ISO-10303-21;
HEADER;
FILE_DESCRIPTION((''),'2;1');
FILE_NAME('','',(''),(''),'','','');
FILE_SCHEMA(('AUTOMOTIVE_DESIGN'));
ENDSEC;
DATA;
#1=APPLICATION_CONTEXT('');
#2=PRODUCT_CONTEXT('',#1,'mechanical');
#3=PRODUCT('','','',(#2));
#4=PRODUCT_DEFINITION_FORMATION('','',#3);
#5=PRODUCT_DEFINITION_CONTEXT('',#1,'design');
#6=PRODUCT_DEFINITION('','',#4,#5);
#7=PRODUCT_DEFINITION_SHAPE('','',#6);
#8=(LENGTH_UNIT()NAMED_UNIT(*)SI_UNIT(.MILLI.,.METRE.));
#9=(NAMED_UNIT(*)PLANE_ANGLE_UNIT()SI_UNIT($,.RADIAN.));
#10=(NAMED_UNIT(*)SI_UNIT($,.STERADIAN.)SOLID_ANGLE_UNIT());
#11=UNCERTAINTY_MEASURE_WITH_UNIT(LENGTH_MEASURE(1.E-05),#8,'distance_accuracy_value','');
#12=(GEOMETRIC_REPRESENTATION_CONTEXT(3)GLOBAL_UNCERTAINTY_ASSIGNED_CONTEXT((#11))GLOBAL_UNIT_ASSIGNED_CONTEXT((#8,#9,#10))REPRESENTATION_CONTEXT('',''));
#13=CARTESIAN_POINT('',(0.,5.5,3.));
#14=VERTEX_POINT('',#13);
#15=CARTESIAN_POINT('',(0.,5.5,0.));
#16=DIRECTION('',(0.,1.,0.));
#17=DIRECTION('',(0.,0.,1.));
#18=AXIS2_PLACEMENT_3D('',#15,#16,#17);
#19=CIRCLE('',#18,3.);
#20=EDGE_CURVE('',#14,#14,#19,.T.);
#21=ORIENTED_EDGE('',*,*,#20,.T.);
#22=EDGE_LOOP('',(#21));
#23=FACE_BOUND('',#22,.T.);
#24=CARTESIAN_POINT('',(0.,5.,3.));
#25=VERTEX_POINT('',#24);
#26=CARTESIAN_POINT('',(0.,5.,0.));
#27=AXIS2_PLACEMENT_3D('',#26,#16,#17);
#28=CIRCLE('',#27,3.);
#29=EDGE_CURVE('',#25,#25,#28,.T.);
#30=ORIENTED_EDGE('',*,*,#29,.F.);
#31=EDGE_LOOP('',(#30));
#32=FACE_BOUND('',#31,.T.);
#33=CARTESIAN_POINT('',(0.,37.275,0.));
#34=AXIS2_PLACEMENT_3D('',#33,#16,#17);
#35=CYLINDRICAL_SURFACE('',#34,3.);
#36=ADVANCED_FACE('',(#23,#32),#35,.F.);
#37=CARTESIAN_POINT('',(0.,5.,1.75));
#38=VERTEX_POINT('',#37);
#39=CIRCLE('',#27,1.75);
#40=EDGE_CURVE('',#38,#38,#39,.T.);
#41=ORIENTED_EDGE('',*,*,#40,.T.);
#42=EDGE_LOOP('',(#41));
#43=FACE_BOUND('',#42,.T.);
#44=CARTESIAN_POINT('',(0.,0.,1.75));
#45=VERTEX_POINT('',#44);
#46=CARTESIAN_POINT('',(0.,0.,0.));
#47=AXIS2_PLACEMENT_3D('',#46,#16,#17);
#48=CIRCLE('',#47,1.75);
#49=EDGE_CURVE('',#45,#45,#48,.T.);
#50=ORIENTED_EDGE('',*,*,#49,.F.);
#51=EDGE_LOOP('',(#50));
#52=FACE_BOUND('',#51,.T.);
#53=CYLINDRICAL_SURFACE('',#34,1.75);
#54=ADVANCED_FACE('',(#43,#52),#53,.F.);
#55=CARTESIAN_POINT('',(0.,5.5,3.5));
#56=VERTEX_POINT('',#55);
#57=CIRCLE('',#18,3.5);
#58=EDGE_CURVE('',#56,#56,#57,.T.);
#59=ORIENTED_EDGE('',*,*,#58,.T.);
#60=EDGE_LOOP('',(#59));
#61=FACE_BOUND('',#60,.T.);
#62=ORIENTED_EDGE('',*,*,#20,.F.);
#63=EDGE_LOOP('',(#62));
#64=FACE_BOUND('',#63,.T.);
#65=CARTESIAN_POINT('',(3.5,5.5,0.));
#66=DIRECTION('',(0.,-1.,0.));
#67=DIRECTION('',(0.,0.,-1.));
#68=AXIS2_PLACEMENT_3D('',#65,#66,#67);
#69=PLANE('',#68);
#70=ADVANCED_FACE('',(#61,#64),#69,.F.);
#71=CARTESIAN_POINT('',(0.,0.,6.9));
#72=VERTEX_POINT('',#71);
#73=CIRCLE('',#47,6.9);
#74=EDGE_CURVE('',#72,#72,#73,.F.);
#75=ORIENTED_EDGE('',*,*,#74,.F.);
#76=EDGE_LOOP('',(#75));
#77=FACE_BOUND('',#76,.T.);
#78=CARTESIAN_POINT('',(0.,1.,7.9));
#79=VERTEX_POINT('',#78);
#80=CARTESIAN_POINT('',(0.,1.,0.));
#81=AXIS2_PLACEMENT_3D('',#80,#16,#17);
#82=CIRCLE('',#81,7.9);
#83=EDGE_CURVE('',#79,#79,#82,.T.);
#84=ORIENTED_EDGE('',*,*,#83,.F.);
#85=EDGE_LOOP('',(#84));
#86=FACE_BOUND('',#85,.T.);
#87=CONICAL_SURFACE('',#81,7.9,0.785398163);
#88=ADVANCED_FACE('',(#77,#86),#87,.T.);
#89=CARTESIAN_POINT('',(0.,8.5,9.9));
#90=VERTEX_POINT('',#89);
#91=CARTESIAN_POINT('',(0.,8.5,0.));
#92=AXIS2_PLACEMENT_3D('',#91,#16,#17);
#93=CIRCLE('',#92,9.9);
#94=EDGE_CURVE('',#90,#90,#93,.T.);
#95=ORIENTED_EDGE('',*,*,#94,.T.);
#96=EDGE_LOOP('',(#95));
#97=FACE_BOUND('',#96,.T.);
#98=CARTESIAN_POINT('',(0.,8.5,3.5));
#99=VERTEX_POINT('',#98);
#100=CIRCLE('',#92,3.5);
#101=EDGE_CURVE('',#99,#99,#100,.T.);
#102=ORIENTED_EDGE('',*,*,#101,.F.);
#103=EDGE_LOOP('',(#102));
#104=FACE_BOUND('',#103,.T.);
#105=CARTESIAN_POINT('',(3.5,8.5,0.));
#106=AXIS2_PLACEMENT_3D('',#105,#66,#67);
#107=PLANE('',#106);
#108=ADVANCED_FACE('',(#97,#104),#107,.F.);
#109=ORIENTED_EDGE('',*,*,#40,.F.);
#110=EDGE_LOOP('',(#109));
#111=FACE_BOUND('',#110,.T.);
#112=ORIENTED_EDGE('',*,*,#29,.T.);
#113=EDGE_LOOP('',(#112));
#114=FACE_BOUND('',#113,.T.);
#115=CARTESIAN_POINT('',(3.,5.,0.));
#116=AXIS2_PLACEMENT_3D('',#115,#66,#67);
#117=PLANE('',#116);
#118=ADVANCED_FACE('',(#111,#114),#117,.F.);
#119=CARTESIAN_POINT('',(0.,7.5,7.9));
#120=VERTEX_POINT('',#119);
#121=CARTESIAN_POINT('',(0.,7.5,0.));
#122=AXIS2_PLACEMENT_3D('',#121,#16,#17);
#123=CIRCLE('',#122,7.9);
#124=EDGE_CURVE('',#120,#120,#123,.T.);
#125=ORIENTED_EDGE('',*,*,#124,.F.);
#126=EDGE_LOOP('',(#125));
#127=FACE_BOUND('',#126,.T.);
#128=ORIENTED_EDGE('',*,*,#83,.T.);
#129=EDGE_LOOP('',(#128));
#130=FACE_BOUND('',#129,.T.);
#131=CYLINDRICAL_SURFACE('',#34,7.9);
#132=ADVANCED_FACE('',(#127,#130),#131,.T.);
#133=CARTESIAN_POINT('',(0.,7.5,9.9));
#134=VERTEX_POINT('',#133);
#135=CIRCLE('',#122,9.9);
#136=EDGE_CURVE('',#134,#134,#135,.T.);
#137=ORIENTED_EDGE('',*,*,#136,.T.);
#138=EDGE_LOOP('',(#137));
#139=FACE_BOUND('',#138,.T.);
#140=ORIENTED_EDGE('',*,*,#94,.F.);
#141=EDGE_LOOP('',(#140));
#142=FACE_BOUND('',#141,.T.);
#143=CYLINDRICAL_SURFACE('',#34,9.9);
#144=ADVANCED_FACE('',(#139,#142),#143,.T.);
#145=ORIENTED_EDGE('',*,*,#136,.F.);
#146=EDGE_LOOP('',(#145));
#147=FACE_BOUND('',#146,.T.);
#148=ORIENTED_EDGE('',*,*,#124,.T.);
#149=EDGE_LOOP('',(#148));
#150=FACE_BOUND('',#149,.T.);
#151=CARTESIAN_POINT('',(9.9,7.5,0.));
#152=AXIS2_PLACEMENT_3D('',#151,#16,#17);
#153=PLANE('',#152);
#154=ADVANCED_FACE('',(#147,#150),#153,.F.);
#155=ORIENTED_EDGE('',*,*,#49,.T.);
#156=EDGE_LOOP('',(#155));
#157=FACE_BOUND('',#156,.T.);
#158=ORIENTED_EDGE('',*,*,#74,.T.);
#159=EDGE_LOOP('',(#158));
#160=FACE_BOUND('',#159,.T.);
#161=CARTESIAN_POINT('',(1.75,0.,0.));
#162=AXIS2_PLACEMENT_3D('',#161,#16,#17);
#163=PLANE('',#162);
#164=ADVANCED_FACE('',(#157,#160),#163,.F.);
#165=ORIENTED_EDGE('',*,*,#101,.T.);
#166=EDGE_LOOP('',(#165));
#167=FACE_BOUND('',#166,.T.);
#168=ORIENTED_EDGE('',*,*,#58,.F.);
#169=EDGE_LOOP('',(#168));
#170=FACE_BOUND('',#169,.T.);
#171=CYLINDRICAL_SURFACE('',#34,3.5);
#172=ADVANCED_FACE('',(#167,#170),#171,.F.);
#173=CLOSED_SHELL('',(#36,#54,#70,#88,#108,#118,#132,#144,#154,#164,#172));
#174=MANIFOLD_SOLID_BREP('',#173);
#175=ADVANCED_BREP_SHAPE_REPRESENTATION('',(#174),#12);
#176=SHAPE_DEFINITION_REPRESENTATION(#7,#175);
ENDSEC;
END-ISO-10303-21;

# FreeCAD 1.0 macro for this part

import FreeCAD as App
import Part
import Sketcher
from FreeCAD import Vector
Q = App.Units.Quantity


def edges_at(feature, points):
    """Names of the edges that pass closest to the given points."""
    edges = feature.Shape.Edges
    near = lambda p: min(range(len(edges)), key=lambda i: edges[i].distToShape(Part.Vertex(*p))[0])
    return sorted({f"Edge{near(p) + 1}" for p in points})


def add_polygon(sketch, points):
    """Adds a closed chain of lines whose ends are joined by coincident constraints."""
    first, n = sketch.GeometryCount, len(points)
    for a, b in zip(points, points[1:] + points[:1]):
        sketch.addGeometry(Part.LineSegment(App.Vector(*a, 0), App.Vector(*b, 0)), False)
    for i in range(n):
        sketch.addConstraint(Sketcher.Constraint("Coincident", first + i, 2, first + (i + 1) % n, 1))

doc = App.newDocument("Part")
params = doc.addObject("Spreadsheet::Sheet", "Params")
for row, (alias, value) in enumerate([
    ("sketch1_width", "2 mm"),
    ("sketch1_height", "1 mm"),
    ("sketch1_height2", "3 mm"),
    ("sketch1_height3", "5 mm"),
    ("sketch1_width2", "6.4 mm"),
    ("revolution_angle", "360 deg"),
    ("chamfer_size", "1 mm"),
], start=1):
    params.set(f"A{row}", alias)
    params.set(f"B{row}", "=" + value)
    params.setAlias(f"B{row}", alias)

body = doc.addObject("PartDesign::Body", "Body")

# Sketch on XY plane
sketch1 = body.newObject("Sketcher::SketchObject", "Sketch")
sketch1.AttachmentSupport = (doc.getObject("XY_Plane"), [""])
sketch1.MapMode = "FlatFace"
add_polygon(sketch1, [(1.8, 0), (7.9, 0), (7.9, 7.5), (9.9, 7.5), (9.9, 8.5), (3.5, 8.5), (3.5, 5.5), (3, 5.5), (3, 5), (1.8, 5)])  # lines 0-9
sketch1.addConstraint([
    Sketcher.Constraint("Horizontal", 0),
    Sketcher.Constraint("Vertical", 1),
    Sketcher.Constraint("Horizontal", 2),
    Sketcher.Constraint("Vertical", 3),
    Sketcher.Constraint("Horizontal", 4),
    Sketcher.Constraint("Vertical", 5),
    Sketcher.Constraint("Horizontal", 6),
    Sketcher.Constraint("Vertical", 7),
    Sketcher.Constraint("Horizontal", 8),
    Sketcher.Constraint("Vertical", 9),
    Sketcher.Constraint("PointOnObject", 0, 2, -1),
    Sketcher.Constraint("Equal", 6, 7),
    Sketcher.Constraint("DistanceX", 2, 1, 2, 2, Q("2 mm")),
    Sketcher.Constraint("DistanceY", 3, 1, 3, 2, Q("1 mm")),
    Sketcher.Constraint("DistanceY", 5, 2, 5, 1, Q("3 mm")),
    Sketcher.Constraint("DistanceY", 9, 2, 9, 1, Q("5 mm")),
    Sketcher.Constraint("DistanceX", 4, 2, 4, 1, Q("6.4 mm")),
    Sketcher.Constraint("DistanceX", 6, 2, 6, 1, Q("0.5 mm")),
    Sketcher.Constraint("DistanceX", -1, 1, 6, 2, Q("3 mm")),
    Sketcher.Constraint("DistanceX", 0, 1, 0, 2, Q("6.15 mm")),
])
sketch1.setExpression("Constraints[22]", "Params.sketch1_width")
sketch1.setExpression("Constraints[23]", "Params.sketch1_height")
sketch1.setExpression("Constraints[24]", "Params.sketch1_height2")
sketch1.setExpression("Constraints[25]", "Params.sketch1_height3")
sketch1.setExpression("Constraints[26]", "Params.sketch1_width2")
revolution = body.newObject("PartDesign::Revolution", "Revolution")
revolution.Profile = sketch1
revolution.ReferenceAxis = (sketch1, ["V_Axis"])
revolution.setExpression("Angle", "Params.revolution_angle")
doc.recompute()

chamfer = body.newObject("PartDesign::Chamfer", "Chamfer")
chamfer.Base = (revolution, edges_at(revolution, [(0, 0, -7.9)]))
chamfer.setExpression("Size", "Params.chamfer_size")

doc.recompute()
